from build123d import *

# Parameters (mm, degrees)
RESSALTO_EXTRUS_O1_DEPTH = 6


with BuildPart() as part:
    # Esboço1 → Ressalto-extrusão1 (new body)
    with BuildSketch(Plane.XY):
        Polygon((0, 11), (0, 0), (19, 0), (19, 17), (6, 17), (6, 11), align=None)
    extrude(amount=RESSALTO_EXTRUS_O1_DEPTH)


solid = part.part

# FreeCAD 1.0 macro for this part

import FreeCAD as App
import Part
import Sketcher


def add_polygon(sketch, points):
    """Adds a closed chain of lines whose ends are joined by coincident constraints."""
    first, n = sketch.GeometryCount, len(points)
    for a, b in zip(points, points[1:] + points[:1]):
        sketch.addGeometry(Part.LineSegment(App.Vector(*a, 0), App.Vector(*b, 0)), False)
    for i in range(n):
        sketch.addConstraint(Sketcher.Constraint("Coincident", first + i, 2, first + (i + 1) % n, 1))

doc = App.newDocument("Part")
params = doc.addObject("Spreadsheet::Sheet", "Params")
for row, (alias, value) in enumerate([
    ("sketch1_width", "19 mm"),
    ("sketch1_width2", "13 mm"),
    ("sketch1_height", "11 mm"),
    ("pad1_length", "6 mm"),
], start=1):
    params.set(f"A{row}", alias)
    params.set(f"B{row}", "=" + value)
    params.setAlias(f"B{row}", alias)

body = doc.addObject("PartDesign::Body", "Body")

# Sketch on XY plane
sketch1 = doc.addObject("Sketcher::SketchObject", "Sketch")
body.addObject(sketch1)
sketch1.AttachmentSupport = (doc.XY_Plane, [""])
sketch1.MapMode = "FlatFace"
add_polygon(sketch1, [(0, 11), (0, 0), (19, 0), (19, 17), (6, 17), (6, 11)])  # lines 0-5
sketch1.addConstraint([
    Sketcher.Constraint("Vertical", 0),
    Sketcher.Constraint("Horizontal", 1),
    Sketcher.Constraint("Vertical", 2),
    Sketcher.Constraint("Horizontal", 3),
    Sketcher.Constraint("Vertical", 4),
    Sketcher.Constraint("Horizontal", 5),
    Sketcher.Constraint("Coincident", 0, 2, -1, 1),
    Sketcher.Constraint("Equal", 5, 4),
    Sketcher.Constraint("DistanceX", 1, 1, 1, 2, 19.0),
    Sketcher.Constraint("DistanceX", 3, 2, 3, 1, 13.0),
    Sketcher.Constraint("DistanceY", 0, 2, 0, 1, 11.0),
])
sketch1.setExpression("Constraints[14]", "Params.sketch1_width")
sketch1.setExpression("Constraints[15]", "Params.sketch1_width2")
sketch1.setExpression("Constraints[16]", "Params.sketch1_height")
pad1 = doc.addObject("PartDesign::Pad", "Pad")
body.addObject(pad1)
pad1.Profile = sketch1
pad1.setExpression("Length", "Params.pad1_length")

doc.recompute()
